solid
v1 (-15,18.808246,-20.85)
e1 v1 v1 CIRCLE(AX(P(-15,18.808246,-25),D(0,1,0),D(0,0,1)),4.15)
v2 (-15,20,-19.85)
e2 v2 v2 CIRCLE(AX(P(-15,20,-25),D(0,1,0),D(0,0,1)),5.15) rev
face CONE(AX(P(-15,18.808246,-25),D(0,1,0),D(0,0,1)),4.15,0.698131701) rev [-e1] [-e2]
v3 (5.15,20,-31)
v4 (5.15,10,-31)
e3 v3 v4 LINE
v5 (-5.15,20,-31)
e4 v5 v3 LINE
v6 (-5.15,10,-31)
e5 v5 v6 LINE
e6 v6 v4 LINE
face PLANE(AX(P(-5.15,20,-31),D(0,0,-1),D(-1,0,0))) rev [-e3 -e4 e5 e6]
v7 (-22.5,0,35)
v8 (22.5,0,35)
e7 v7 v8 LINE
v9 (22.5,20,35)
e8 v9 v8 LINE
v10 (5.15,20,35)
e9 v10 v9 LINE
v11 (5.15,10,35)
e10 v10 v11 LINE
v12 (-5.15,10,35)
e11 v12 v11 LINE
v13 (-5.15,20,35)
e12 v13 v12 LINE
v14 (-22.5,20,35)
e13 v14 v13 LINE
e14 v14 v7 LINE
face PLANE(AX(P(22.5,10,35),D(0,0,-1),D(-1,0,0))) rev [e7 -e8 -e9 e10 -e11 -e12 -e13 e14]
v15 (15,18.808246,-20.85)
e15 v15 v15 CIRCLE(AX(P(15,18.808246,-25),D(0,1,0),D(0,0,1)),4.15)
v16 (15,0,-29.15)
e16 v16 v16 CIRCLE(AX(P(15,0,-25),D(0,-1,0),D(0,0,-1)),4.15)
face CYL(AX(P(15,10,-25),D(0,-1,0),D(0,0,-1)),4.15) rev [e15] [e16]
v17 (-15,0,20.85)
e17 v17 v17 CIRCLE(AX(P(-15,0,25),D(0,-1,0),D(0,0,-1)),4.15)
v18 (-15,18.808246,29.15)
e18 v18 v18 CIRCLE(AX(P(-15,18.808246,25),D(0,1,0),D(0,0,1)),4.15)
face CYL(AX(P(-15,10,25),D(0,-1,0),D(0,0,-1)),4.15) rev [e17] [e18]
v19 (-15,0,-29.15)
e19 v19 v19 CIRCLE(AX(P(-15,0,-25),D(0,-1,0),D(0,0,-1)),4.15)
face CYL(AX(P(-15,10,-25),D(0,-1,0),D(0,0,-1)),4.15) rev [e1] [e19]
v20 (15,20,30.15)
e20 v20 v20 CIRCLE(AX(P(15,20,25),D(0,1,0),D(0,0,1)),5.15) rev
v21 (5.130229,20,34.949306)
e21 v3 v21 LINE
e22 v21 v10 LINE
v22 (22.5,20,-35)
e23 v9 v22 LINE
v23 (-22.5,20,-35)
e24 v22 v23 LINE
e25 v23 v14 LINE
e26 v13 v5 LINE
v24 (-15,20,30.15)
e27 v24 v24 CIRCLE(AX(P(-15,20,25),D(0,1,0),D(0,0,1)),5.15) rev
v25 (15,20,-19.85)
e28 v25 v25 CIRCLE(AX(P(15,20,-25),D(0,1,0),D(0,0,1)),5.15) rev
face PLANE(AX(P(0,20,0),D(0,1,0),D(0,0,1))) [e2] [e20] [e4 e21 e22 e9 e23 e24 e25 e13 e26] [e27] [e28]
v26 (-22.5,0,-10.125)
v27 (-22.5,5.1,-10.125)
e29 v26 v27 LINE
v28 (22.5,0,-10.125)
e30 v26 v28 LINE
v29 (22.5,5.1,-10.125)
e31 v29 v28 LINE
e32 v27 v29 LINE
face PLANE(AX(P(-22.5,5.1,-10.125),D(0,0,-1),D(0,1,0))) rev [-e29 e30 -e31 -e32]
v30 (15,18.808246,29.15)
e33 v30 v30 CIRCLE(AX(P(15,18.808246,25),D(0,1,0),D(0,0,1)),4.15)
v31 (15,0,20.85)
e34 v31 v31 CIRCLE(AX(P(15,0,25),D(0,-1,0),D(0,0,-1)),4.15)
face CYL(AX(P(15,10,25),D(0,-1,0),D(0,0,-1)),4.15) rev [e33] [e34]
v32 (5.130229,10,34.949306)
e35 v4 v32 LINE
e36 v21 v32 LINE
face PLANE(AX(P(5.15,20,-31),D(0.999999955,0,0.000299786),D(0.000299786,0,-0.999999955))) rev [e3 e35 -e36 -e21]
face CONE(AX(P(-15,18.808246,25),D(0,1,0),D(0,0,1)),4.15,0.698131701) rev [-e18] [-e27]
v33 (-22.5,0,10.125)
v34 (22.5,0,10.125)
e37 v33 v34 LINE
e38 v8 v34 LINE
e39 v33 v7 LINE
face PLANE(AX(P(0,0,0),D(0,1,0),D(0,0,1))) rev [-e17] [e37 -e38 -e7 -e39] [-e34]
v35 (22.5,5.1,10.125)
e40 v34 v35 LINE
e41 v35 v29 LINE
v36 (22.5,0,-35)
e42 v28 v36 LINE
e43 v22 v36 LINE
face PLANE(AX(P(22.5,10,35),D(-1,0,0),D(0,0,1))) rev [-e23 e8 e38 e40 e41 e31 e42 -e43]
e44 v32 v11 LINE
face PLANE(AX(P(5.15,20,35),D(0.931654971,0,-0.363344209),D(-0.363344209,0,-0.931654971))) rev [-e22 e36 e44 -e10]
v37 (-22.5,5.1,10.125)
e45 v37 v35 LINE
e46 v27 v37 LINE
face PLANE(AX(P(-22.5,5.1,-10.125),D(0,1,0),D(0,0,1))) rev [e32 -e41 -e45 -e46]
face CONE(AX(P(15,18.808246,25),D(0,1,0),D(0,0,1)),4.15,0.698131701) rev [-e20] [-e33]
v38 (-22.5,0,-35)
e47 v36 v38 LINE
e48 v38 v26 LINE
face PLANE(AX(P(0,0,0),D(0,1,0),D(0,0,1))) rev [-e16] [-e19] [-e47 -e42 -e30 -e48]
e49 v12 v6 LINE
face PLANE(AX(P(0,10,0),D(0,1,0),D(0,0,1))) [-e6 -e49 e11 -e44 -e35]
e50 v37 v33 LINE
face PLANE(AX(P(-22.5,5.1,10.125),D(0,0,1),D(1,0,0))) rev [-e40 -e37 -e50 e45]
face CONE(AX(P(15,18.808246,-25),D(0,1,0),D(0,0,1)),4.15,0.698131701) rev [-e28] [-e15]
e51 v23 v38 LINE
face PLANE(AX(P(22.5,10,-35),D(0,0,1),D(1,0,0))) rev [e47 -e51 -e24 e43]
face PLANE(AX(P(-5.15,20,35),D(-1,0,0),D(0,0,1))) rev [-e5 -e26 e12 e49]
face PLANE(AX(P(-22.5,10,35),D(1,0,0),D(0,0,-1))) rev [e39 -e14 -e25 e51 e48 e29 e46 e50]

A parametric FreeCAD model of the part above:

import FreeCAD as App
import Part
import Sketcher
Q = App.Units.Quantity


def edges_at(feature, points):
    """Names of the edges that pass closest to the given points."""
    edges = feature.Shape.Edges
    near = lambda p: min(range(len(edges)), key=lambda i: edges[i].distToShape(Part.Vertex(*p))[0])
    return sorted({f"Edge{near(p) + 1}" for p in points})


def add_polygon(sketch, points):
    """Adds a closed chain of lines whose ends are joined by coincident constraints."""
    first, n = sketch.GeometryCount, len(points)
    for a, b in zip(points, points[1:] + points[:1]):
        sketch.addGeometry(Part.LineSegment(App.Vector(*a, 0), App.Vector(*b, 0)), False)
    for i in range(n):
        sketch.addConstraint(Sketcher.Constraint("Coincident", first + i, 2, first + (i + 1) % n, 1))

doc = App.newDocument("Part")
body = doc.addObject("PartDesign::Body", "Body")

# Sketch on XZ plane
sketch1 = body.newObject("Sketcher::SketchObject", "Sketch")
sketch1.AttachmentSupport = (doc.getObject("XZ_Plane"), [""])
sketch1.MapMode = "FlatFace"
add_polygon(sketch1, [(-22, -35), (-22, 35), (22, 35), (22, -35)])  # lines 0-3
sketch1.addConstraint([
    Sketcher.Constraint("Vertical", 0),
    Sketcher.Constraint("Horizontal", 1),
    Sketcher.Constraint("Vertical", 2),
    Sketcher.Constraint("Horizontal", 3),
    Sketcher.Constraint("Symmetric", 0, 2, 2, 2, -1, 1),
    Sketcher.Constraint("DistanceX", 1, 1, 1, 2, Q("45 mm")),
    Sketcher.Constraint("DistanceY", 0, 1, 0, 2, Q("70 mm")),
])
pad1 = body.newObject("PartDesign::Pad", "Pad")
pad1.Profile = sketch1
pad1.Length = 10
pad1.Reversed = True

# Sketch on YZ plane
sketch2 = body.newObject("Sketcher::SketchObject", "Sketch001")
sketch2.AttachmentSupport = (doc.getObject("YZ_Plane"), [""])
sketch2.MapMode = "FlatFace"
sketch2.AttachmentOffset = App.Placement(App.Vector(0, 0, 22.5), App.Rotation())
add_polygon(sketch2, [(5, 10), (0, 10), (0, -10), (5, -10)])  # lines 0-3
sketch2.addConstraint([
    Sketcher.Constraint("Horizontal", 0),
    Sketcher.Constraint("Vertical", 1),
    Sketcher.Constraint("Horizontal", 2),
    Sketcher.Constraint("Vertical", 3),
    Sketcher.Constraint("Symmetric", 0, 2, 1, 2, -1, 1),
    Sketcher.Constraint("DistanceX", 0, 2, 0, 1, Q("5.1 mm")),
    Sketcher.Constraint("DistanceY", 1, 2, 1, 1, Q("20.25 mm")),
])
pocket1 = body.newObject("PartDesign::Pocket", "Pocket")
pocket1.Profile = sketch2
pocket1.Type = "ThroughAll"
pocket1.Midplane = True

# Sketch on XZ plane
sketch3 = body.newObject("Sketcher::SketchObject", "Sketch002")
sketch3.AttachmentSupport = (doc.getObject("XZ_Plane"), [""])
sketch3.MapMode = "FlatFace"
sketch3.addGeometry([
    Part.Circle(App.Vector(15, 25, 0), App.Vector(0, 0, 1), 4.2),
    Part.Circle(App.Vector(15, -25, 0), App.Vector(0, 0, 1), 4.2),
    Part.Circle(App.Vector(-15, -25, 0), App.Vector(0, 0, 1), 4.2),
    Part.Circle(App.Vector(-15, 25, 0), App.Vector(0, 0, 1), 4.2),
], False)
sketch3.addConstraint([
    Sketcher.Constraint("Equal", 0, 1),
    Sketcher.Constraint("Equal", 1, 2),
    Sketcher.Constraint("Equal", 2, 3),
    Sketcher.Constraint("Symmetric", 0, 3, 2, 3, -1, 1),
    Sketcher.Constraint("Symmetric", 1, 3, 3, 3, -1, 1),
    Sketcher.Constraint("Symmetric", 1, 3, 2, 3, -2),
    Sketcher.Constraint("Diameter", 0, Q("8.3 mm")),
    Sketcher.Constraint("DistanceX", -1, 1, 0, 3, Q("15 mm")),
    Sketcher.Constraint("DistanceY", -1, 1, 0, 3, Q("25 mm")),
])
pocket2 = body.newObject("PartDesign::Pocket", "Pocket001")
pocket2.Profile = sketch3
pocket2.Type = "ThroughAll"

# Sketch on XZ plane
sketch4 = body.newObject("Sketcher::SketchObject", "Sketch003")
sketch4.AttachmentSupport = (doc.getObject("XZ_Plane"), [""])
sketch4.MapMode = "FlatFace"
sketch4.AttachmentOffset = App.Placement(App.Vector(0, 0, -10), App.Rotation())
add_polygon(sketch4, [(-22.5, 35), (-5.15, 35), (-5.15, -31), (5.15, -31), (5.13, 34.95), (5.15, 35), (22.5, 35), (22.5, -35), (-22.5, -35)])  # lines 0-8
sketch4.addGeometry(Part.Circle(App.Vector(15, 25, 0), App.Vector(0, 0, 1), 4.15), False)  # 9
sketch4.addGeometry(Part.Circle(App.Vector(-15, 25, 0), App.Vector(0, 0, 1), 4.15), False)  # 10
sketch4.addGeometry(Part.Circle(App.Vector(15, -25, 0), App.Vector(0, 0, 1), 4.15), False)  # 11
sketch4.addGeometry(Part.Circle(App.Vector(-15, -25, 0), App.Vector(0, 0, 1), 4.15), False)  # 12
sketch4.addConstraint([
    Sketcher.Constraint("Horizontal", 0),
    Sketcher.Constraint("Vertical", 1),
    Sketcher.Constraint("Horizontal", 2),
    Sketcher.Constraint("Horizontal", 5),
    Sketcher.Constraint("Vertical", 6),
    Sketcher.Constraint("Horizontal", 7),
    Sketcher.Constraint("Vertical", 8),
    Sketcher.Constraint("Equal", 9, 10),
    Sketcher.Constraint("Equal", 10, 11),
    Sketcher.Constraint("Equal", 11, 12),
    Sketcher.Constraint("Symmetric", 10, 3, 11, 3, -1, 1),
    Sketcher.Constraint("Symmetric", 9, 3, 12, 3, -1, 1),
    Sketcher.Constraint("Symmetric", 5, 2, 7, 2, -1, 1),
    Sketcher.Constraint("Symmetric", 9, 3, 10, 3, -2),
    Sketcher.Constraint("Symmetric", 0, 2, 4, 2, -2),
    Sketcher.Constraint("Vertical", 2, 2, 4, 2),
    Sketcher.Constraint("Diameter", 9, Q("8.3 mm")),
    Sketcher.Constraint("DistanceX", 7, 2, 7, 1, Q("45 mm")),
    Sketcher.Constraint("DistanceY", 1, 2, 1, 1, Q("66 mm")),
    Sketcher.Constraint("DistanceY", 6, 2, 6, 1, Q("70 mm")),
    Sketcher.Constraint("DistanceX", 2, 1, 2, 2, Q("10.3 mm")),
    Sketcher.Constraint("DistanceX", -1, 1, 9, 3, Q("15 mm")),
    Sketcher.Constraint("DistanceY", -1, 1, 9, 3, Q("25 mm")),
    Sketcher.Constraint("Distance", 3, Q("65.949309 mm")),
    Sketcher.Constraint("DistanceX", -1, 1, 3, 2, Q("5.130229 mm")),
])
pad2 = body.newObject("PartDesign::Pad", "Pad001")
pad2.Profile = sketch4
pad2.Length = 10
pad2.Reversed = True
doc.recompute()

chamfer = body.newObject("PartDesign::Chamfer", "Chamfer")
chamfer.Base = (pad2, edges_at(pad2, [
    (-19.15, 20, -25),
    (10.85, 20, -25),
    (10.85, 20, 25),
    (-19.15, 20, 25),
]))
chamfer.ChamferType = "Two distances"
chamfer.Size = 1
chamfer.Size2 = 1.191754

doc.recompute()
